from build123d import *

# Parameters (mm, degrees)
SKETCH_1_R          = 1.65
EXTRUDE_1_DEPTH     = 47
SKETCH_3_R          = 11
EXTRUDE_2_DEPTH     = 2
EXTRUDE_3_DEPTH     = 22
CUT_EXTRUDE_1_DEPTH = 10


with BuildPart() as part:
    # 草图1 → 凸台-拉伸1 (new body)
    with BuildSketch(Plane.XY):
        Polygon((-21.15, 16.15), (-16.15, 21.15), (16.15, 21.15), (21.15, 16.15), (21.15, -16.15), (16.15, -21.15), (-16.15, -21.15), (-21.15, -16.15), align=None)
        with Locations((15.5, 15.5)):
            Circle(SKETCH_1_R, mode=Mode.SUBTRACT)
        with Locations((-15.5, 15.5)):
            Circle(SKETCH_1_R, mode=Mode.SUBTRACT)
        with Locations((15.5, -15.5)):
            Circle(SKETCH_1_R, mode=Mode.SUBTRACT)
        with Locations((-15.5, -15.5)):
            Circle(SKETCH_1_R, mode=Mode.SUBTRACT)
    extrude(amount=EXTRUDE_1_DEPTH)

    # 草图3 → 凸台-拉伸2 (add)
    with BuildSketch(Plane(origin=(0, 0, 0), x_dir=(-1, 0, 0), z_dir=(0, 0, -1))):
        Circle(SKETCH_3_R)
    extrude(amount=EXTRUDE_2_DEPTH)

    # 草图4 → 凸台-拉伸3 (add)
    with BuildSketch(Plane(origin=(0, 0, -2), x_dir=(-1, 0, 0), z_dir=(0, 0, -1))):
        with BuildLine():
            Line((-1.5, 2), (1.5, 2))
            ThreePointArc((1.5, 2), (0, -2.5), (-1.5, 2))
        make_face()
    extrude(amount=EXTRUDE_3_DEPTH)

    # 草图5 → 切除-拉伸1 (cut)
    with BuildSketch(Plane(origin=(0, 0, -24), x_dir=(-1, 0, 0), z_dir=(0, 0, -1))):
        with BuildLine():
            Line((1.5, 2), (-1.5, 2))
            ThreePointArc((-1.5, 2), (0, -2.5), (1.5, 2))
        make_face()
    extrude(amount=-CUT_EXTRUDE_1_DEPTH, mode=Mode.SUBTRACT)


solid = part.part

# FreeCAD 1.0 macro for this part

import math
import FreeCAD as App
import Part
import Sketcher

V = App.Vector

doc = App.newDocument("Part")
body = doc.addObject("PartDesign::Body", "Body")

# Sketch on XY plane
sketch1 = body.newObject("Sketcher::SketchObject", "Sketch")
sketch1.AttachmentSupport = (doc.getObject("XY_Plane"), [""])
sketch1.MapMode = "FlatFace"
sketch1.addGeometry([
    Part.LineSegment(V(-16.15, 21.15, 0), V(-21.15, 16.15, 0)),  # 0
    Part.LineSegment(V(-21.15, 16.15, 0), V(-21.15, -16.15, 0)),  # 1
    Part.LineSegment(V(-21.15, -16.15, 0), V(-16.15, -21.15, 0)),  # 2
    Part.LineSegment(V(-16.15, -21.15, 0), V(16.15, -21.15, 0)),  # 3
    Part.LineSegment(V(16.15, -21.15, 0), V(21.15, -16.15, 0)),  # 4
    Part.LineSegment(V(21.15, -16.15, 0), V(21.15, 16.15, 0)),  # 5
    Part.LineSegment(V(21.15, 16.15, 0), V(16.15, 21.15, 0)),  # 6
    Part.LineSegment(V(16.15, 21.15, 0), V(-16.15, 21.15, 0)),  # 7
    Part.Circle(V(15.5, -15.5, 0), V(0, 0, 1), 1.65),  # 8
    Part.Circle(V(-15.5, -15.5, 0), V(0, 0, 1), 1.65),  # 9
    Part.Circle(V(15.5, 15.5, 0), V(0, 0, 1), 1.65),  # 10
    Part.Circle(V(-15.5, 15.5, 0), V(0, 0, 1), 1.65),  # 11
], False)
sketch1.addConstraint([
    Sketcher.Constraint("Coincident", 0, 2, 1, 1),
    Sketcher.Constraint("Coincident", 1, 2, 2, 1),
    Sketcher.Constraint("Coincident", 2, 2, 3, 1),
    Sketcher.Constraint("Coincident", 3, 2, 4, 1),
    Sketcher.Constraint("Coincident", 4, 2, 5, 1),
    Sketcher.Constraint("Coincident", 5, 2, 6, 1),
    Sketcher.Constraint("Coincident", 6, 2, 7, 1),
    Sketcher.Constraint("Coincident", 7, 2, 0, 1),
    Sketcher.Constraint("Vertical", 1),
    Sketcher.Constraint("Horizontal", 3),
    Sketcher.Constraint("Vertical", 5),
    Sketcher.Constraint("Horizontal", 7),
    Sketcher.Constraint("Equal", 8, 9),
    Sketcher.Constraint("Equal", 9, 10),
    Sketcher.Constraint("Equal", 10, 11),
    Sketcher.Constraint("Symmetric", 9, 3, 10, 3, -1, 1),
    Sketcher.Constraint("Symmetric", 8, 3, 11, 3, -1, 1),
    Sketcher.Constraint("Symmetric", 0, 2, 4, 2, -1, 1),
    Sketcher.Constraint("Symmetric", 2, 2, 6, 2, -1, 1),
    Sketcher.Constraint("Symmetric", 8, 3, 9, 3, -2),
    Sketcher.Constraint("Perpendicular", 0, 2),
    Sketcher.Constraint("Perpendicular", 2, 4),
    Sketcher.Constraint("Perpendicular", 4, 6),
    Sketcher.Constraint("Horizontal", 1, 2, 4, 2),
    Sketcher.Constraint("Vertical", 3, 2, 6, 2),
    Sketcher.Constraint("Equal", 7, 1),
    Sketcher.Constraint("Diameter", 8, 3.3),
    Sketcher.Constraint("DistanceX", 3, 1, 3, 2, 32.3),
    Sketcher.Constraint("DistanceX", 9, 3, 8, 3, 31.0),
    Sketcher.Constraint("DistanceY", 8, 3, 10, 3, 31.0),
    Sketcher.Constraint("DistanceX", 1, 2, 2, 2, 5.0),
])
pad1 = body.newObject("PartDesign::Pad", "Pad")
pad1.Profile = sketch1
pad1.Length = 47

# Sketch on XY plane
sketch2 = body.newObject("Sketcher::SketchObject", "Sketch001")
sketch2.AttachmentSupport = (doc.getObject("XY_Plane"), [""])
sketch2.MapMode = "FlatFace"
sketch2.addGeometry(Part.Circle(V(0, 0, 0), V(0, 0, 1), 11), False)
sketch2.addConstraint([
    Sketcher.Constraint("Coincident", 0, 3, -1, 1),
    Sketcher.Constraint("Diameter", 0, 22.0),
])
pad2 = body.newObject("PartDesign::Pad", "Pad001")
pad2.Profile = sketch2
pad2.Length = 2
pad2.Reversed = True

# Sketch on XY plane
sketch3 = body.newObject("Sketcher::SketchObject", "Sketch002")
sketch3.AttachmentSupport = (doc.getObject("XY_Plane"), [""])
sketch3.MapMode = "FlatFace"
sketch3.AttachmentOffset = App.Placement(V(0, 0, -2), App.Rotation())
sketch3.addGeometry([
    Part.LineSegment(V(-1.5, 2, 0), V(1.5, 2, 0)),
    Part.ArcOfCircle(Part.Circle(V(0, 0, 0), V(0, 0, 1), 2.5), math.radians(126.869898), math.radians(413.130102)),
], False)
sketch3.addConstraint([
    Sketcher.Constraint("Coincident", 0, 1, 1, 1),
    Sketcher.Constraint("Coincident", 1, 2, 0, 2),
    Sketcher.Constraint("Horizontal", 0),
    Sketcher.Constraint("Coincident", 1, 3, -1, 1),
    Sketcher.Constraint("Radius", 1, 2.5),
    Sketcher.Constraint("DistanceX", 0, 1, 0, 2, 3.0),
])
pad3 = body.newObject("PartDesign::Pad", "Pad002")
pad3.Profile = sketch3
pad3.Length = 22
pad3.Reversed = True

# Sketch on XY plane
sketch4 = body.newObject("Sketcher::SketchObject", "Sketch003")
sketch4.AttachmentSupport = (doc.getObject("XY_Plane"), [""])
sketch4.MapMode = "FlatFace"
sketch4.AttachmentOffset = App.Placement(V(0, 0, -24), App.Rotation())
sketch4.addGeometry([
    Part.LineSegment(V(-1.5, 2, 0), V(1.5, 2, 0)),
    Part.ArcOfCircle(Part.Circle(V(0, 0, 0), V(0, 0, 1), 2.5), math.radians(126.869898), math.radians(413.130102)),
], False)
sketch4.addConstraint([
    Sketcher.Constraint("Coincident", 0, 1, 1, 1),
    Sketcher.Constraint("Coincident", 1, 2, 0, 2),
    Sketcher.Constraint("Horizontal", 0),
    Sketcher.Constraint("Coincident", 1, 3, -1, 1),
    Sketcher.Constraint("Radius", 1, 2.5),
    Sketcher.Constraint("DistanceX", 0, 1, 0, 2, 3.0),
])
pocket1 = body.newObject("PartDesign::Pocket", "Pocket")
pocket1.Profile = sketch4
pocket1.Length = 10
pocket1.Reversed = True

doc.recompute()
